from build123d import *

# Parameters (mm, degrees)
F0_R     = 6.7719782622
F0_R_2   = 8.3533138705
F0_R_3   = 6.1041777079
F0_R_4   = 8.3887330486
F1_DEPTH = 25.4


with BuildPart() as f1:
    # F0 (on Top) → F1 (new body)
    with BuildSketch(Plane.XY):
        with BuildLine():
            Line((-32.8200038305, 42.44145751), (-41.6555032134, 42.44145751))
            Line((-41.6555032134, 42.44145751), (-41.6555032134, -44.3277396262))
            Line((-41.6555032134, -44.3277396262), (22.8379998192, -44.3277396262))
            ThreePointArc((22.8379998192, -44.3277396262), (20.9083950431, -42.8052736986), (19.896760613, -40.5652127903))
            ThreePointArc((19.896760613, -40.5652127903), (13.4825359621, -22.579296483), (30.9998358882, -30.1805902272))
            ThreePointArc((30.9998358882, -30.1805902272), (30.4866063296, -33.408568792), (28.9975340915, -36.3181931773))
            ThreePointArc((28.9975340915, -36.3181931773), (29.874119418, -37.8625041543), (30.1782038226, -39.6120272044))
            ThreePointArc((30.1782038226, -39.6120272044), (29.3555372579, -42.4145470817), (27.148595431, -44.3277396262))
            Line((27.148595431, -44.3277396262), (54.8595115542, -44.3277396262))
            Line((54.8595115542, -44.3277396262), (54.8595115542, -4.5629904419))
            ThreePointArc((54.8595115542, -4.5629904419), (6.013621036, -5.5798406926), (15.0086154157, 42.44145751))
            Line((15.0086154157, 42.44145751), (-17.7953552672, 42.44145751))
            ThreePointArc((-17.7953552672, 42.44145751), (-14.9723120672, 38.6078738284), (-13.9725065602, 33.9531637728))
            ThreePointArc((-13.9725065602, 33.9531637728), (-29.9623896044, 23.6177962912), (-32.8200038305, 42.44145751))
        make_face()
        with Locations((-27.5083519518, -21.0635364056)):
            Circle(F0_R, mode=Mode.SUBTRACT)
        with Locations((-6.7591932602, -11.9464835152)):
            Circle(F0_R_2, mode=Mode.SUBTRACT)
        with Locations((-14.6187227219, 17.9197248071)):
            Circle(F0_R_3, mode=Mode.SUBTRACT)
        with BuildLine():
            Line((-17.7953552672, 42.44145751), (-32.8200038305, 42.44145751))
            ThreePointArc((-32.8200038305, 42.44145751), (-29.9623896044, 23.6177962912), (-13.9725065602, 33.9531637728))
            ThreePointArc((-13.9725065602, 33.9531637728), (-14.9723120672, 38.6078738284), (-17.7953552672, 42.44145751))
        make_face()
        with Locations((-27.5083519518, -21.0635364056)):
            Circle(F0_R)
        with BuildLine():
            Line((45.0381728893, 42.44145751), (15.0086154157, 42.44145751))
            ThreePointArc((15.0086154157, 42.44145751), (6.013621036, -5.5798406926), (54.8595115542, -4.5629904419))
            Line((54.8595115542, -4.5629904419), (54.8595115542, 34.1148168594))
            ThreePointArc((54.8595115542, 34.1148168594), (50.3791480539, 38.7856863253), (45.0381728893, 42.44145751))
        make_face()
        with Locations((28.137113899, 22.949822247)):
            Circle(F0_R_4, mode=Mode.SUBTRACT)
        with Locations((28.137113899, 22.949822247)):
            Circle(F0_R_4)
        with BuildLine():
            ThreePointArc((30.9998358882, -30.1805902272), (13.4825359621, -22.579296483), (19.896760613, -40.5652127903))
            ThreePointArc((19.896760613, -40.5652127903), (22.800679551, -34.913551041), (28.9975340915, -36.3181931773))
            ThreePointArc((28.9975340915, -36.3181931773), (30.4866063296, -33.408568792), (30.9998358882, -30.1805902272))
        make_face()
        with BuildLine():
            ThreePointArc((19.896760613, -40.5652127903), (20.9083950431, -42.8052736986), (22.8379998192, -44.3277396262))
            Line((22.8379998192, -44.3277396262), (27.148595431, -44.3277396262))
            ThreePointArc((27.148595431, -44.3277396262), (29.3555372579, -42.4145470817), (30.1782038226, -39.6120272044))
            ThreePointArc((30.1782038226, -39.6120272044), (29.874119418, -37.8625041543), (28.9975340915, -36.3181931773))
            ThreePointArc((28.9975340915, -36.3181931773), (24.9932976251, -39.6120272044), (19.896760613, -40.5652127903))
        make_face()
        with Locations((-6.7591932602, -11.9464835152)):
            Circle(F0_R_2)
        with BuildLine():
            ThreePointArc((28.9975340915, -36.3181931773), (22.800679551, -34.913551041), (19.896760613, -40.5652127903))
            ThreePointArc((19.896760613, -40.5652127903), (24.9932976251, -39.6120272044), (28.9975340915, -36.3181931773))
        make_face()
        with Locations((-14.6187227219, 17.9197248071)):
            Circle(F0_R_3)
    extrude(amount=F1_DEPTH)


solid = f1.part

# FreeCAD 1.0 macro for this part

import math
import FreeCAD as App
import Part
import Sketcher
from FreeCAD import Vector
Q = App.Units.Quantity

doc = App.newDocument("Part")
body = doc.addObject("PartDesign::Body", "Body")

sketch1 = body.newObject("Sketcher::SketchObject", "Sketch")
sketch1.AttachmentSupport = (doc.getObject("XY_Plane"), [""])
sketch1.MapMode = "FlatFace"
sketch1.addGeometry([
    Part.LineSegment(Vector(-42, 42, 0), Vector(-42, -44, 0)),
    Part.LineSegment(Vector(-42, -44, 0), Vector(55, -44, 0)),
    Part.LineSegment(Vector(55, -44, 0), Vector(55, 34, 0)),
    Part.ArcOfCircle(Part.Circle(Vector(30, 15, 0), Vector(0, 0, 1), 31), math.radians(38), math.radians(62)),
    Part.LineSegment(Vector(45, 42, 0), Vector(-42, 42, 0)),
], False)
sketch1.addConstraint([
    Sketcher.Constraint("Coincident", 0, 2, 1, 1),
    Sketcher.Constraint("Coincident", 1, 2, 2, 1),
    Sketcher.Constraint("Coincident", 2, 2, 3, 1),
    Sketcher.Constraint("Coincident", 3, 2, 4, 1),
    Sketcher.Constraint("Coincident", 4, 2, 0, 1),
    Sketcher.Constraint("Vertical", 0),
    Sketcher.Constraint("Horizontal", 1),
    Sketcher.Constraint("Vertical", 2),
    Sketcher.Constraint("Horizontal", 4),
    Sketcher.Constraint("Radius", 3, 31.477387),
    Sketcher.Constraint("DistanceX", 3, 3, 1, 2, Q("0.9777999 in")),
    Sketcher.Constraint("DistanceX", 1, 1, 1, 2, 96.515015),
    Sketcher.Constraint("DistanceX", 4, 2, 4, 1, 86.693676),
    Sketcher.Constraint("DistanceY", 0, 2, 0, 1, 86.769197),
    Sketcher.Constraint("DistanceY", 0, 2, -1, 1, 44.32774),
    Sketcher.Constraint("DistanceX", -1, 1, 1, 2, 54.859512),
])
pad1 = body.newObject("PartDesign::Pad", "Pad")
pad1.Profile = sketch1
pad1.Length = Q("1 in")

doc.recompute()
